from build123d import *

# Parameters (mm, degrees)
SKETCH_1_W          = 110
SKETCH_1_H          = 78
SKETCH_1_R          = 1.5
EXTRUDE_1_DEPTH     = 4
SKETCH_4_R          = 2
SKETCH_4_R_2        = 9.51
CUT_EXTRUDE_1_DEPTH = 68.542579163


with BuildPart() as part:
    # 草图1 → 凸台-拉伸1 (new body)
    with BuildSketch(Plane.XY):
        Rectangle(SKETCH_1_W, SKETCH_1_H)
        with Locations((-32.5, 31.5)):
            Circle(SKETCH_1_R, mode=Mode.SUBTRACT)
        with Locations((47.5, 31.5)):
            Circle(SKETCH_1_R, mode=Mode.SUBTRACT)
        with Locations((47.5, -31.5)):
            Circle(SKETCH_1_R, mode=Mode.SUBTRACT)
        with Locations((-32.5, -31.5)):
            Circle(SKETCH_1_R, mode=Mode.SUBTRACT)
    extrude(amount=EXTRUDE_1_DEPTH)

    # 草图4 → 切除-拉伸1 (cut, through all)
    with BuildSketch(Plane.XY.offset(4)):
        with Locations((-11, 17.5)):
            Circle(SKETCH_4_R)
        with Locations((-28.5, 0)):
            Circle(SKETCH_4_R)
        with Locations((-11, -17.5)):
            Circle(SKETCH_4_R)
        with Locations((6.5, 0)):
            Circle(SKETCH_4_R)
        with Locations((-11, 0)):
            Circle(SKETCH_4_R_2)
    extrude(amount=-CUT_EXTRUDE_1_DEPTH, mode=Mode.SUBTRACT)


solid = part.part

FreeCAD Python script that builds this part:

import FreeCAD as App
import Part
import Sketcher

V = App.Vector

doc = App.newDocument("Part")
body = doc.addObject("PartDesign::Body", "Body")

# Sketch on XY plane
sketch1 = body.newObject("Sketcher::SketchObject", "Sketch")
sketch1.AttachmentSupport = (doc.getObject("XY_Plane"), [""])
sketch1.MapMode = "FlatFace"
sketch1.addGeometry([
    Part.LineSegment(V(-55, 39, 0), V(-55, -39, 0)),  # 0
    Part.LineSegment(V(-55, -39, 0), V(55, -39, 0)),  # 1
    Part.LineSegment(V(55, -39, 0), V(55, 39, 0)),  # 2
    Part.LineSegment(V(55, 39, 0), V(-55, 39, 0)),  # 3
    Part.Circle(V(-32.5, -31.5, 0), V(0, 0, 1), 1.5),  # 4
    Part.Circle(V(47.5, -31.5, 0), V(0, 0, 1), 1.5),  # 5
    Part.Circle(V(-32.5, 31.5, 0), V(0, 0, 1), 1.5),  # 6
    Part.Circle(V(47.5, 31.5, 0), V(0, 0, 1), 1.5),  # 7
], False)
sketch1.addConstraint([
    Sketcher.Constraint("Coincident", 0, 2, 1, 1),
    Sketcher.Constraint("Coincident", 1, 2, 2, 1),
    Sketcher.Constraint("Coincident", 2, 2, 3, 1),
    Sketcher.Constraint("Coincident", 3, 2, 0, 1),
    Sketcher.Constraint("Vertical", 0),
    Sketcher.Constraint("Horizontal", 1),
    Sketcher.Constraint("Vertical", 2),
    Sketcher.Constraint("Horizontal", 3),
    Sketcher.Constraint("Equal", 4, 5),
    Sketcher.Constraint("Equal", 5, 6),
    Sketcher.Constraint("Equal", 6, 7),
    Sketcher.Constraint("Symmetric", 0, 2, 2, 2, -1, 1),
    Sketcher.Constraint("Symmetric", 4, 3, 6, 3, -1),
    Sketcher.Constraint("Symmetric", 5, 3, 7, 3, -1),
    Sketcher.Constraint("Horizontal", 4, 3, 5, 3),
    Sketcher.Constraint("Diameter", 4, 3.0),
    Sketcher.Constraint("DistanceX", 1, 1, 1, 2, 110.0),
    Sketcher.Constraint("DistanceY", 0, 2, 0, 1, 78.0),
    Sketcher.Constraint("DistanceX", 4, 3, 5, 3, 80.0),
    Sketcher.Constraint("DistanceY", 4, 3, 6, 3, 63.0),
    Sketcher.Constraint("DistanceX", 4, 3, -1, 1, 32.5),
])
pad1 = body.newObject("PartDesign::Pad", "Pad")
pad1.Profile = sketch1
pad1.Length = 4

# Sketch on XY plane
sketch2 = body.newObject("Sketcher::SketchObject", "Sketch001")
sketch2.AttachmentSupport = (doc.getObject("XY_Plane"), [""])
sketch2.MapMode = "FlatFace"
sketch2.AttachmentOffset = App.Placement(V(0, 0, 4), App.Rotation())
sketch2.addGeometry([
    Part.Circle(V(-11, 17.5, 0), V(0, 0, 1), 2),  # 0
    Part.Circle(V(-28.5, 0, 0), V(0, 0, 1), 2),  # 1
    Part.Circle(V(-11, -17.5, 0), V(0, 0, 1), 2),  # 2
    Part.Circle(V(6.5, 0, 0), V(0, 0, 1), 2),  # 3
    Part.Circle(V(-11, 0, 0), V(0, 0, 1), 9.5),  # 4
], False)
sketch2.addConstraint([
    Sketcher.Constraint("Equal", 0, 1),
    Sketcher.Constraint("Equal", 1, 2),
    Sketcher.Constraint("Equal", 2, 3),
    Sketcher.Constraint("Symmetric", 0, 3, 2, 3, -1),
    Sketcher.Constraint("PointOnObject", 1, 3, -1),
    Sketcher.Constraint("PointOnObject", 3, 3, -1),
    Sketcher.Constraint("PointOnObject", 4, 3, -1),
    Sketcher.Constraint("Vertical", 2, 3, 4, 3),
    Sketcher.Constraint("Diameter", 0, 4.0),
    Sketcher.Constraint("Diameter", 4, 19.02),
    Sketcher.Constraint("DistanceX", 0, 3, -1, 1, 11.0),
    Sketcher.Constraint("DistanceY", 2, 3, 0, 3, 35.0),
    Sketcher.Constraint("DistanceX", 1, 3, 3, 3, 35.0),
    Sketcher.Constraint("DistanceX", 1, 3, -1, 1, 28.5),
])
pocket1 = body.newObject("PartDesign::Pocket", "Pocket")
pocket1.Profile = sketch2
pocket1.Type = "ThroughAll"

doc.recompute()
